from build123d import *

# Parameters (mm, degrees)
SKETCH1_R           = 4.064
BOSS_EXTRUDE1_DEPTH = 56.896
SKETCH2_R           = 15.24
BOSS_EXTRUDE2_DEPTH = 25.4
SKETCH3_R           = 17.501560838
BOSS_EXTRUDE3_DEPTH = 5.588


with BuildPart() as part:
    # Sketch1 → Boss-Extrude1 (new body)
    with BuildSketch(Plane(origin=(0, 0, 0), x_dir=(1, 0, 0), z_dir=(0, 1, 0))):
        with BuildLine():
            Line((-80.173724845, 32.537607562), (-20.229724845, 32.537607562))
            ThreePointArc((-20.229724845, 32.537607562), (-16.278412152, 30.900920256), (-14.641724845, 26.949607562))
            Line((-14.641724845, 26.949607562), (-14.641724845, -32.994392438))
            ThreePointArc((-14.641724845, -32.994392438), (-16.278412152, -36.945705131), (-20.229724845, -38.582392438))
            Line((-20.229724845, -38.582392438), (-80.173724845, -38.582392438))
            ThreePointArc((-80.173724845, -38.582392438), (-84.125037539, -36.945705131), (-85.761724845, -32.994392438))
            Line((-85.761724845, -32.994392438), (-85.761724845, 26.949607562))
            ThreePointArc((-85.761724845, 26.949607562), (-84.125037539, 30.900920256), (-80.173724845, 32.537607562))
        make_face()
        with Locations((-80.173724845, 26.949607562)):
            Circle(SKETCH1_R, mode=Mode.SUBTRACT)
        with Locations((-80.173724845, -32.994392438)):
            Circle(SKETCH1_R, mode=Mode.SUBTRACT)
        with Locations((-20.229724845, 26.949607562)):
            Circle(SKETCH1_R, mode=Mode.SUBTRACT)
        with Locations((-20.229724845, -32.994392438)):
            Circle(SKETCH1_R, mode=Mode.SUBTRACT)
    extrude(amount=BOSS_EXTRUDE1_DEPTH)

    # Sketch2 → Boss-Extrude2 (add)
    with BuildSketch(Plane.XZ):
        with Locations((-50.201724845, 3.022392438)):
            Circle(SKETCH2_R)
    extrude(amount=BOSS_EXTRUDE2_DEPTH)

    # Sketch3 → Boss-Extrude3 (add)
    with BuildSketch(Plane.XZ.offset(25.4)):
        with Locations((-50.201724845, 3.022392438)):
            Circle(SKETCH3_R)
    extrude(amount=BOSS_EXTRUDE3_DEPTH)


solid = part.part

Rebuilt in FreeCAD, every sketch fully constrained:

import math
import FreeCAD as App
import Part
import Sketcher
from FreeCAD import Vector
Q = App.Units.Quantity

doc = App.newDocument("Part")
body = doc.addObject("PartDesign::Body", "Body")

sketch1 = doc.addObject("Sketcher::SketchObject", "Sketch")
body.addObject(sketch1)
sketch1.AttachmentSupport = (doc.XZ_Plane, [""])
sketch1.MapMode = "FlatFace"
sketch1.addGeometry([
    Part.LineSegment(Vector(-20.2, -32.5, 0), Vector(-80.2, -32.5, 0)),
    Part.ArcOfCircle(Part.Circle(Vector(-80.2, -26.9, 0), Vector(0, 0, 1), 5.6), math.radians(180), math.radians(270)),
    Part.LineSegment(Vector(-85.8, -26.9, 0), Vector(-85.8, 33, 0)),
    Part.ArcOfCircle(Part.Circle(Vector(-80.2, 33, 0), Vector(0, 0, 1), 5.6), math.radians(90), math.radians(180)),
    Part.LineSegment(Vector(-80.2, 38.6, 0), Vector(-20.2, 38.6, 0)),
    Part.ArcOfCircle(Part.Circle(Vector(-20.2, 33, 0), Vector(0, 0, 1), 5.6), math.radians(0), math.radians(90)),
    Part.LineSegment(Vector(-14.6, 33, 0), Vector(-14.6, -26.9, 0)),
    Part.ArcOfCircle(Part.Circle(Vector(-20.2, -26.9, 0), Vector(0, 0, 1), 5.6), math.radians(-90), math.radians(0)),
    Part.Circle(Vector(-20.2, 33, 0), Vector(0, 0, 1), 4.1),
    Part.Circle(Vector(-80.2, 33, 0), Vector(0, 0, 1), 4.1),
    Part.Circle(Vector(-20.2, -26.9, 0), Vector(0, 0, 1), 4.1),
    Part.Circle(Vector(-80.2, -26.9, 0), Vector(0, 0, 1), 4.1),
], False)
sketch1.addConstraint([
    Sketcher.Constraint("Tangent", 0, 2, 1, 2),
    Sketcher.Constraint("Tangent", 1, 1, 2, 1),
    Sketcher.Constraint("Tangent", 2, 2, 3, 2),
    Sketcher.Constraint("Tangent", 3, 1, 4, 1),
    Sketcher.Constraint("Tangent", 4, 2, 5, 2),
    Sketcher.Constraint("Tangent", 5, 1, 6, 1),
    Sketcher.Constraint("Tangent", 6, 2, 7, 2),
    Sketcher.Constraint("Tangent", 7, 1, 0, 1),
    Sketcher.Constraint("Horizontal", 0),
    Sketcher.Constraint("Vertical", 2),
    Sketcher.Constraint("Horizontal", 4),
    Sketcher.Constraint("Vertical", 6),
    Sketcher.Constraint("Coincident", 8, 3, 5, 3),
    Sketcher.Constraint("Coincident", 9, 3, 3, 3),
    Sketcher.Constraint("Coincident", 10, 3, 7, 3),
    Sketcher.Constraint("Coincident", 11, 3, 1, 3),
    Sketcher.Constraint("Equal", 1, 3),
    Sketcher.Constraint("Equal", 3, 5),
    Sketcher.Constraint("Equal", 5, 7),
    Sketcher.Constraint("Equal", 8, 9),
    Sketcher.Constraint("Equal", 9, 10),
    Sketcher.Constraint("Equal", 10, 11),
    Sketcher.Constraint("Equal", 4, 2),
    Sketcher.Constraint("Diameter", 8, Q("0.32 in")),
    Sketcher.Constraint("Radius", 1, Q("0.22 in")),
    Sketcher.Constraint("DistanceX", 0, 2, 0, 1, Q("2.36 in")),
    Sketcher.Constraint("DistanceX", 1, 3, -1, 1, Q("80.173725 mm")),
    Sketcher.Constraint("DistanceY", 1, 3, -1, 1, Q("26.949608 mm")),
])
pad1 = doc.addObject("PartDesign::Pad", "Pad")
body.addObject(pad1)
pad1.Profile = sketch1
pad1.Length = Q("2.24 in")
pad1.Reversed = True

sketch2 = doc.addObject("Sketcher::SketchObject", "Sketch001")
body.addObject(sketch2)
sketch2.AttachmentSupport = (doc.XZ_Plane, [""])
sketch2.MapMode = "FlatFace"
sketch2.addGeometry(Part.Circle(Vector(-50, 3, 0), Vector(0, 0, 1), 15), False)
sketch2.addConstraint([
    Sketcher.Constraint("Diameter", 0, Q("1.2 in")),
    Sketcher.Constraint("DistanceX", 0, 3, -1, 1, Q("50.201725 mm")),
    Sketcher.Constraint("DistanceY", -1, 1, 0, 3, Q("3.022392 mm")),
])
pad2 = doc.addObject("PartDesign::Pad", "Pad001")
body.addObject(pad2)
pad2.Profile = sketch2
pad2.Length = Q("1 in")

sketch3 = doc.addObject("Sketcher::SketchObject", "Sketch002")
body.addObject(sketch3)
sketch3.AttachmentSupport = (doc.XZ_Plane, [""])
sketch3.MapMode = "FlatFace"
sketch3.AttachmentOffset = App.Placement(Vector(0, 0, 1 * 25.4), App.Rotation())
sketch3.addGeometry(Part.Circle(Vector(-50, 3, 0), Vector(0, 0, 1), 18), False)
sketch3.addConstraint([
    Sketcher.Constraint("Diameter", 0, Q("35.003122 mm")),
    Sketcher.Constraint("DistanceX", 0, 3, -1, 1, Q("50.201725 mm")),
    Sketcher.Constraint("DistanceY", -1, 1, 0, 3, Q("3.022392 mm")),
])
pad3 = doc.addObject("PartDesign::Pad", "Pad002")
body.addObject(pad3)
pad3.Profile = sketch3
pad3.Length = Q("0.22 in")

doc.recompute()
